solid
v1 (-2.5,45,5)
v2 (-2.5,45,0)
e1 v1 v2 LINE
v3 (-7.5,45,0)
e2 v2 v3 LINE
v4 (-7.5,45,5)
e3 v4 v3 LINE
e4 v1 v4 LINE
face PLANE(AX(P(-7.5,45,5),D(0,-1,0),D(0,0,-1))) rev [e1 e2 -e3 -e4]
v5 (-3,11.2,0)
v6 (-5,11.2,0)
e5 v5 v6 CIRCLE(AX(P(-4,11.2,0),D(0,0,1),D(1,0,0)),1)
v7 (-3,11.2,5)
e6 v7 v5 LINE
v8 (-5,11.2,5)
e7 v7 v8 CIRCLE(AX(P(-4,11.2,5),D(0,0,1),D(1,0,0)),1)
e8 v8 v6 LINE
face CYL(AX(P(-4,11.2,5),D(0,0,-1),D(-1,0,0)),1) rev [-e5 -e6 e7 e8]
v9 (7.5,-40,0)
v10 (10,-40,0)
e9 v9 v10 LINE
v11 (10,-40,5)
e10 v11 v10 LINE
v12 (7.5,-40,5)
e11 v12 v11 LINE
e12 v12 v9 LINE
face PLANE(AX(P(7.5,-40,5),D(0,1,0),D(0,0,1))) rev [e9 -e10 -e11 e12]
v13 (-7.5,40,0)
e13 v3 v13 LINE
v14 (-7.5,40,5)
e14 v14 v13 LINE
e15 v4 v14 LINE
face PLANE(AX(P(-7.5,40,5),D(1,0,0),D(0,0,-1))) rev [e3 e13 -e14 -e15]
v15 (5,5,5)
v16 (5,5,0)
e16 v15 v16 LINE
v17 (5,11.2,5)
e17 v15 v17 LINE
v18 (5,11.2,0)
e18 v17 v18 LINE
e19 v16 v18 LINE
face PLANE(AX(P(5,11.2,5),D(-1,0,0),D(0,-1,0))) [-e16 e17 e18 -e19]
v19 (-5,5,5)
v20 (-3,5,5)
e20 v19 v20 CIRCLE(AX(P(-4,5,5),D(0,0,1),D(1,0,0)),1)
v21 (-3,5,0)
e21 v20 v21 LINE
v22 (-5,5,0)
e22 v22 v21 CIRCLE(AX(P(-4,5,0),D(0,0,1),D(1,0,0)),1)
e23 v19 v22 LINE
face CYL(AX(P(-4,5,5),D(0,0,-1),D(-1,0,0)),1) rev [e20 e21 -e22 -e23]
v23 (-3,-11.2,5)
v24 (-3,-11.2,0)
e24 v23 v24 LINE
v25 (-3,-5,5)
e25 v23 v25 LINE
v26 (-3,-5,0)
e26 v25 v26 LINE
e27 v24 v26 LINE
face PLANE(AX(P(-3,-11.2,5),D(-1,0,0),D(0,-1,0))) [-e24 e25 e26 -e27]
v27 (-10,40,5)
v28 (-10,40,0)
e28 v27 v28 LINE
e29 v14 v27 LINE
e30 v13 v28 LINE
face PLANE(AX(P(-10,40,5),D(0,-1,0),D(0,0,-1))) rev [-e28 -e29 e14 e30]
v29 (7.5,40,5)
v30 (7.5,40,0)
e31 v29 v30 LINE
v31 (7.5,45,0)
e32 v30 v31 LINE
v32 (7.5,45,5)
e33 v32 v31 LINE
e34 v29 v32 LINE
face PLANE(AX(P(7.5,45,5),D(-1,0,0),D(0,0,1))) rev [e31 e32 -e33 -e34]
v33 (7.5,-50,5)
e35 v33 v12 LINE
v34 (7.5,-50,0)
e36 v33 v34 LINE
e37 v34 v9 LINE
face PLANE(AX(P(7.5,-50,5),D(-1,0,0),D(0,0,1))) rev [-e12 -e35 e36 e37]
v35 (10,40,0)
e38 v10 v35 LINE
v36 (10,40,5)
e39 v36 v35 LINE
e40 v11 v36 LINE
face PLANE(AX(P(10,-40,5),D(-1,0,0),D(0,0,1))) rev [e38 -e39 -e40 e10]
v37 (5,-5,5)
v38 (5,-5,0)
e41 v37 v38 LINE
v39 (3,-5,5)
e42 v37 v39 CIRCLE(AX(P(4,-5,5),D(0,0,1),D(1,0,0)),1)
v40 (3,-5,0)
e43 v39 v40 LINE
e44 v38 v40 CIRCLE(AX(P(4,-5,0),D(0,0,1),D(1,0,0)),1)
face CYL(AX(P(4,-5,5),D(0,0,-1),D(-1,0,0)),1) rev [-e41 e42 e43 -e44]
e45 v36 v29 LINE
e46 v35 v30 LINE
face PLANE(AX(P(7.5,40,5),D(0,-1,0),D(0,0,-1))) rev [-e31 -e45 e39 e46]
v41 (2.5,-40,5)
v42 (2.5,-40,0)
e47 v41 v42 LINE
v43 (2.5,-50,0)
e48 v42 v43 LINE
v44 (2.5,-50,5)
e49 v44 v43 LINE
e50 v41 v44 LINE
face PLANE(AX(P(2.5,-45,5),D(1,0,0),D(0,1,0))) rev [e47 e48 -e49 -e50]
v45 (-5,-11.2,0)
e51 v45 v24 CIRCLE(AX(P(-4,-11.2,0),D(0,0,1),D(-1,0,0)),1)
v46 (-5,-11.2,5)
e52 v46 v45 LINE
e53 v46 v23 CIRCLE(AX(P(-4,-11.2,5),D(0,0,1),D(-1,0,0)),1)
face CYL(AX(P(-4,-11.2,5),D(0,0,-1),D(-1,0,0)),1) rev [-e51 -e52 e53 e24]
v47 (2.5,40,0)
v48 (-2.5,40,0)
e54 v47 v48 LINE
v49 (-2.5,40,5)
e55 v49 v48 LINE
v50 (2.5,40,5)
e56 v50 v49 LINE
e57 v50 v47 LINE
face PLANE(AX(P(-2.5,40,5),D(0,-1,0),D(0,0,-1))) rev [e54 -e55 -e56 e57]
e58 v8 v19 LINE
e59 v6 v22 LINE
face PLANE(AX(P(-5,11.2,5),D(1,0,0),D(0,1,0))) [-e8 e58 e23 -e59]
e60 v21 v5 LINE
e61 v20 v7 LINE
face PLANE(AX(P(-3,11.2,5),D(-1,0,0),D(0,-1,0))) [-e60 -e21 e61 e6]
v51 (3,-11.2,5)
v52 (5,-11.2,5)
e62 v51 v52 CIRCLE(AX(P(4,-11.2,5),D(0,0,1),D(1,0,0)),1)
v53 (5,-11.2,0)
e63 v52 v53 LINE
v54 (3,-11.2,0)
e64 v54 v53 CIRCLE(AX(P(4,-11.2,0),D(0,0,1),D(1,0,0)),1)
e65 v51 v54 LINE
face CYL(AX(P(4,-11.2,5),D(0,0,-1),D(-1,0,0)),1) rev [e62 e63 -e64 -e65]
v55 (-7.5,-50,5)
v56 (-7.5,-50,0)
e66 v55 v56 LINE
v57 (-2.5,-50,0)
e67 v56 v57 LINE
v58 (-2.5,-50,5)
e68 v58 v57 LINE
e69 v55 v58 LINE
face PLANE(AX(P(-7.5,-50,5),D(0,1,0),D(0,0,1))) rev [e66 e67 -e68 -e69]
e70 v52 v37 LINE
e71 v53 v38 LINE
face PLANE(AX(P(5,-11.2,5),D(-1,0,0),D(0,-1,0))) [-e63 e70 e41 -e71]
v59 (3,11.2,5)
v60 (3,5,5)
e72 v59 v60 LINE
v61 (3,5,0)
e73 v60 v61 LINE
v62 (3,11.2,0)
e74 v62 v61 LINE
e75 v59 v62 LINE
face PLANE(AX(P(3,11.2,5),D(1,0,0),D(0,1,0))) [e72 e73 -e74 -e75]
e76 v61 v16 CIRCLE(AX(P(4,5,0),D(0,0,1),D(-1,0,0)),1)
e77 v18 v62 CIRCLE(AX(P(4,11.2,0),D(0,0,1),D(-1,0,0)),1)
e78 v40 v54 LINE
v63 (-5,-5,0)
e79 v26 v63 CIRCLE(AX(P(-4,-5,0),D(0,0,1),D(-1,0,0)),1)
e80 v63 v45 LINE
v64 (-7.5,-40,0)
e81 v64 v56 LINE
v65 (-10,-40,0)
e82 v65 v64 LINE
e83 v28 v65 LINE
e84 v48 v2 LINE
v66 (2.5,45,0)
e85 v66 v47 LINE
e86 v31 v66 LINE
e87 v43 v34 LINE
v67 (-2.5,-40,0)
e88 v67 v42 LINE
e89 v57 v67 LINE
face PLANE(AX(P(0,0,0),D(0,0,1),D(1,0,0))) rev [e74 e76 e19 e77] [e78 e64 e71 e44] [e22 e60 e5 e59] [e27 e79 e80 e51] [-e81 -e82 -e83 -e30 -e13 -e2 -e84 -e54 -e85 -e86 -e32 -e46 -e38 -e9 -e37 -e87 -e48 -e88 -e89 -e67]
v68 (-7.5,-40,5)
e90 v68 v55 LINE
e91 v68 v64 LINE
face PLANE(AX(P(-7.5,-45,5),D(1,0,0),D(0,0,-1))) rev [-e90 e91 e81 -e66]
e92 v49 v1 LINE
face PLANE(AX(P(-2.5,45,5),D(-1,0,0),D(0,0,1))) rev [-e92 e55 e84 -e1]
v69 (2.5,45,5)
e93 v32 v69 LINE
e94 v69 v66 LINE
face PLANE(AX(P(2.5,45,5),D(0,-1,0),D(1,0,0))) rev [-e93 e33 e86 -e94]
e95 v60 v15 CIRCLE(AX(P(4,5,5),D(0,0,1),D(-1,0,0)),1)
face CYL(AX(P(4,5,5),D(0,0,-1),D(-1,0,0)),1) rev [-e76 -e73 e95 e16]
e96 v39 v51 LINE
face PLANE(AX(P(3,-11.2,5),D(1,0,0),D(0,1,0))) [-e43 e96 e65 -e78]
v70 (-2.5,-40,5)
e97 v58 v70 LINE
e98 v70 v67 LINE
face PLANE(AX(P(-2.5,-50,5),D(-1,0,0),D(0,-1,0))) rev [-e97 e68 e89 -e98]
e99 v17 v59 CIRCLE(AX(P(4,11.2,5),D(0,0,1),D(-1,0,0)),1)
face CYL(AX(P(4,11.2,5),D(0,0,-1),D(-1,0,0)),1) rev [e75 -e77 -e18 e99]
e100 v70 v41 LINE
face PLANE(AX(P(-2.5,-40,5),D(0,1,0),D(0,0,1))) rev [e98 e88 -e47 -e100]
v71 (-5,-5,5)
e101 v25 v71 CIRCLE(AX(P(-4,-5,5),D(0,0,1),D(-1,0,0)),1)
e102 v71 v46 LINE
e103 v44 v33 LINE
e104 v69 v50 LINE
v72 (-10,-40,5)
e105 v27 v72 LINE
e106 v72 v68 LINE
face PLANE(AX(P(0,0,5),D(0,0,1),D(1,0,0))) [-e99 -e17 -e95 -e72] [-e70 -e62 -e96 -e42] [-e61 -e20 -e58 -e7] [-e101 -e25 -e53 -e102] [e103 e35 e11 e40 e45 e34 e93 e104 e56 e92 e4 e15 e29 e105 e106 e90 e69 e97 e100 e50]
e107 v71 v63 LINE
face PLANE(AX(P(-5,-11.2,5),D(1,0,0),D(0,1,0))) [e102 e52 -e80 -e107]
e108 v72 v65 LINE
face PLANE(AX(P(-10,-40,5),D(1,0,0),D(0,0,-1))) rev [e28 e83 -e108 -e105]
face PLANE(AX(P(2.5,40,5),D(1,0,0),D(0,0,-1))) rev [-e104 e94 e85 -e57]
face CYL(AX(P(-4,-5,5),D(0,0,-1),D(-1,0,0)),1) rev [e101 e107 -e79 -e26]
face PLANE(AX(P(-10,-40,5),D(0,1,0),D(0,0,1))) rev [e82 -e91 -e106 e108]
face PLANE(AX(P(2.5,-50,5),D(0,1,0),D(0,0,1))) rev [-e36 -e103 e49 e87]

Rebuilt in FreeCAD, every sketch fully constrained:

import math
import FreeCAD as App
import Part
import Sketcher


def add_polygon(sketch, points):
    """Adds a closed chain of lines whose ends are joined by coincident constraints."""
    first, n = sketch.GeometryCount, len(points)
    for a, b in zip(points, points[1:] + points[:1]):
        sketch.addGeometry(Part.LineSegment(App.Vector(*a, 0), App.Vector(*b, 0)), False)
    for i in range(n):
        sketch.addConstraint(Sketcher.Constraint("Coincident", first + i, 2, first + (i + 1) % n, 1))

doc = App.newDocument("Part")
body = doc.addObject("PartDesign::Body", "Body")

sketch1 = doc.addObject("Sketcher::SketchObject", "Sketch")
body.addObject(sketch1)
sketch1.AttachmentSupport = (doc.XY_Plane, [""])
sketch1.MapMode = "FlatFace"
add_polygon(sketch1, [(-7.5, 45), (-7.5, 40), (-10, 40), (-10, -40), (-7.5, -40), (-7.5, -50), (-2.5, -50), (-2.5, -40), (2.5, -40), (2.5, -50), (7.5, -50), (7.5, -40), (10, -40), (10, 40), (7.5, 40), (7.5, 45), (2.5, 45), (2.5, 40), (-2.5, 40), (-2.5, 45)])
sketch1.addGeometry(Part.LineSegment(App.Vector(3, -11.2, 0), App.Vector(3, -5, 0)), False)
sketch1.addGeometry(Part.ArcOfCircle(Part.Circle(App.Vector(4, -5, 0), App.Vector(0, 0, 1), 1), math.radians(0), math.radians(180)), False)
sketch1.addGeometry(Part.LineSegment(App.Vector(5, -5, 0), App.Vector(5, -11.2, 0)), False)
sketch1.addGeometry(Part.ArcOfCircle(Part.Circle(App.Vector(4, -11.2, 0), App.Vector(0, 0, 1), 1), math.radians(180), math.radians(360)), False)
sketch1.addGeometry(Part.ArcOfCircle(Part.Circle(App.Vector(-4, -11.2, 0), App.Vector(0, 0, 1), 1), math.radians(180), math.radians(360)), False)
sketch1.addGeometry(Part.LineSegment(App.Vector(-5, -11.2, 0), App.Vector(-5, -5, 0)), False)
sketch1.addGeometry(Part.ArcOfCircle(Part.Circle(App.Vector(-4, -5, 0), App.Vector(0, 0, 1), 1), math.radians(0), math.radians(180)), False)
sketch1.addGeometry(Part.LineSegment(App.Vector(-3, -5, 0), App.Vector(-3, -11.2, 0)), False)
sketch1.addGeometry(Part.ArcOfCircle(Part.Circle(App.Vector(4, 11.2, 0), App.Vector(0, 0, 1), 1), math.radians(0), math.radians(180)), False)
sketch1.addGeometry(Part.LineSegment(App.Vector(5, 11.2, 0), App.Vector(5, 5, 0)), False)
sketch1.addGeometry(Part.ArcOfCircle(Part.Circle(App.Vector(4, 5, 0), App.Vector(0, 0, 1), 1), math.radians(180), math.radians(360)), False)
sketch1.addGeometry(Part.LineSegment(App.Vector(3, 5, 0), App.Vector(3, 11.2, 0)), False)
sketch1.addGeometry(Part.LineSegment(App.Vector(-3, 11.2, 0), App.Vector(-3, 5, 0)), False)
sketch1.addGeometry(Part.ArcOfCircle(Part.Circle(App.Vector(-4, 5, 0), App.Vector(0, 0, 1), 1), math.radians(180), math.radians(360)), False)
sketch1.addGeometry(Part.LineSegment(App.Vector(-5, 5, 0), App.Vector(-5, 11.2, 0)), False)
sketch1.addGeometry(Part.ArcOfCircle(Part.Circle(App.Vector(-4, 11.2, 0), App.Vector(0, 0, 1), 1), math.radians(0), math.radians(180)), False)
sketch1.addConstraint([
    Sketcher.Constraint("Tangent", 20, 2, 21, 2),
    Sketcher.Constraint("Tangent", 21, 1, 22, 1),
    Sketcher.Constraint("Tangent", 22, 2, 23, 2),
    Sketcher.Constraint("Tangent", 23, 1, 20, 1),
    Sketcher.Constraint("Tangent", 24, 1, 25, 1),
    Sketcher.Constraint("Tangent", 25, 2, 26, 2),
    Sketcher.Constraint("Tangent", 26, 1, 27, 1),
    Sketcher.Constraint("Tangent", 27, 2, 24, 2),
    Sketcher.Constraint("Tangent", 28, 1, 29, 1),
    Sketcher.Constraint("Tangent", 29, 2, 30, 2),
    Sketcher.Constraint("Tangent", 30, 1, 31, 1),
    Sketcher.Constraint("Tangent", 31, 2, 28, 2),
    Sketcher.Constraint("Tangent", 32, 2, 33, 2),
    Sketcher.Constraint("Tangent", 33, 1, 34, 1),
    Sketcher.Constraint("Tangent", 34, 2, 35, 2),
    Sketcher.Constraint("Tangent", 35, 1, 32, 1),
    Sketcher.Constraint("Vertical", 0),
    Sketcher.Constraint("Horizontal", 1),
    Sketcher.Constraint("Vertical", 2),
    Sketcher.Constraint("Horizontal", 3),
    Sketcher.Constraint("Vertical", 4),
    Sketcher.Constraint("Horizontal", 5),
    Sketcher.Constraint("Vertical", 6),
    Sketcher.Constraint("Horizontal", 7),
    Sketcher.Constraint("Vertical", 8),
    Sketcher.Constraint("Horizontal", 9),
    Sketcher.Constraint("Vertical", 10),
    Sketcher.Constraint("Horizontal", 11),
    Sketcher.Constraint("Vertical", 12),
    Sketcher.Constraint("Horizontal", 13),
    Sketcher.Constraint("Vertical", 14),
    Sketcher.Constraint("Horizontal", 15),
    Sketcher.Constraint("Vertical", 16),
    Sketcher.Constraint("Horizontal", 17),
    Sketcher.Constraint("Vertical", 18),
    Sketcher.Constraint("Horizontal", 19),
    Sketcher.Constraint("Vertical", 20),
    Sketcher.Constraint("Vertical", 22),
    Sketcher.Constraint("Vertical", 25),
    Sketcher.Constraint("Vertical", 27),
    Sketcher.Constraint("Vertical", 29),
    Sketcher.Constraint("Vertical", 31),
    Sketcher.Constraint("Vertical", 32),
    Sketcher.Constraint("Vertical", 34),
    Sketcher.Constraint("Equal", 23, 24),
    Sketcher.Constraint("Equal", 26, 28),
    Sketcher.Constraint("Equal", 30, 33),
    Sketcher.Constraint("Symmetric", 24, 3, 28, 3, -1, 1),
    Sketcher.Constraint("Symmetric", 21, 3, 33, 3, -1, 1),
    Sketcher.Constraint("Symmetric", 0, 2, 10, 2, -1, 1),
    Sketcher.Constraint("Symmetric", 2, 2, 12, 2, -1, 1),
    Sketcher.Constraint("Symmetric", 6, 2, 16, 2, -1, 1),
    Sketcher.Constraint("Symmetric", 23, 3, 24, 3, -2),
    Sketcher.Constraint("Symmetric", 5, 2, 8, 2, -2),
    Sketcher.Constraint("Symmetric", 3, 2, 10, 2, -2),
    Sketcher.Constraint("Symmetric", 15, 2, 18, 2, -2),
    Sketcher.Constraint("Horizontal", 21, 3, 26, 3),
    Sketcher.Constraint("Horizontal", 30, 3, 33, 3),
    Sketcher.Constraint("Horizontal", 28, 3, 35, 3),
    Sketcher.Constraint("Horizontal", 3, 2, 6, 2),
    Sketcher.Constraint("Vertical", 10, 2, 13, 2),
    Sketcher.Constraint("Equal", 5, 7),
    Sketcher.Constraint("Equal", 19, 0),
    Sketcher.Constraint("Radius", 21, 1.0),
    Sketcher.Constraint("DistanceX", 5, 1, 5, 2, 5.0),
    Sketcher.Constraint("DistanceY", 2, 2, 2, 1, 80.0),
    Sketcher.Constraint("DistanceY", 4, 2, 4, 1, 10.0),
    Sketcher.Constraint("DistanceX", 1, 2, 1, 1, 2.5),
    Sketcher.Constraint("DistanceY", 20, 1, 20, 2, 6.2),
    Sketcher.Constraint("DistanceX", -1, 1, 21, 3, 4.0),
    Sketcher.Constraint("DistanceY", 21, 3, -1, 1, 5.0),
])
pad1 = doc.addObject("PartDesign::Pad", "Pad")
body.addObject(pad1)
pad1.Profile = sketch1
pad1.Length = 5

doc.recompute()
